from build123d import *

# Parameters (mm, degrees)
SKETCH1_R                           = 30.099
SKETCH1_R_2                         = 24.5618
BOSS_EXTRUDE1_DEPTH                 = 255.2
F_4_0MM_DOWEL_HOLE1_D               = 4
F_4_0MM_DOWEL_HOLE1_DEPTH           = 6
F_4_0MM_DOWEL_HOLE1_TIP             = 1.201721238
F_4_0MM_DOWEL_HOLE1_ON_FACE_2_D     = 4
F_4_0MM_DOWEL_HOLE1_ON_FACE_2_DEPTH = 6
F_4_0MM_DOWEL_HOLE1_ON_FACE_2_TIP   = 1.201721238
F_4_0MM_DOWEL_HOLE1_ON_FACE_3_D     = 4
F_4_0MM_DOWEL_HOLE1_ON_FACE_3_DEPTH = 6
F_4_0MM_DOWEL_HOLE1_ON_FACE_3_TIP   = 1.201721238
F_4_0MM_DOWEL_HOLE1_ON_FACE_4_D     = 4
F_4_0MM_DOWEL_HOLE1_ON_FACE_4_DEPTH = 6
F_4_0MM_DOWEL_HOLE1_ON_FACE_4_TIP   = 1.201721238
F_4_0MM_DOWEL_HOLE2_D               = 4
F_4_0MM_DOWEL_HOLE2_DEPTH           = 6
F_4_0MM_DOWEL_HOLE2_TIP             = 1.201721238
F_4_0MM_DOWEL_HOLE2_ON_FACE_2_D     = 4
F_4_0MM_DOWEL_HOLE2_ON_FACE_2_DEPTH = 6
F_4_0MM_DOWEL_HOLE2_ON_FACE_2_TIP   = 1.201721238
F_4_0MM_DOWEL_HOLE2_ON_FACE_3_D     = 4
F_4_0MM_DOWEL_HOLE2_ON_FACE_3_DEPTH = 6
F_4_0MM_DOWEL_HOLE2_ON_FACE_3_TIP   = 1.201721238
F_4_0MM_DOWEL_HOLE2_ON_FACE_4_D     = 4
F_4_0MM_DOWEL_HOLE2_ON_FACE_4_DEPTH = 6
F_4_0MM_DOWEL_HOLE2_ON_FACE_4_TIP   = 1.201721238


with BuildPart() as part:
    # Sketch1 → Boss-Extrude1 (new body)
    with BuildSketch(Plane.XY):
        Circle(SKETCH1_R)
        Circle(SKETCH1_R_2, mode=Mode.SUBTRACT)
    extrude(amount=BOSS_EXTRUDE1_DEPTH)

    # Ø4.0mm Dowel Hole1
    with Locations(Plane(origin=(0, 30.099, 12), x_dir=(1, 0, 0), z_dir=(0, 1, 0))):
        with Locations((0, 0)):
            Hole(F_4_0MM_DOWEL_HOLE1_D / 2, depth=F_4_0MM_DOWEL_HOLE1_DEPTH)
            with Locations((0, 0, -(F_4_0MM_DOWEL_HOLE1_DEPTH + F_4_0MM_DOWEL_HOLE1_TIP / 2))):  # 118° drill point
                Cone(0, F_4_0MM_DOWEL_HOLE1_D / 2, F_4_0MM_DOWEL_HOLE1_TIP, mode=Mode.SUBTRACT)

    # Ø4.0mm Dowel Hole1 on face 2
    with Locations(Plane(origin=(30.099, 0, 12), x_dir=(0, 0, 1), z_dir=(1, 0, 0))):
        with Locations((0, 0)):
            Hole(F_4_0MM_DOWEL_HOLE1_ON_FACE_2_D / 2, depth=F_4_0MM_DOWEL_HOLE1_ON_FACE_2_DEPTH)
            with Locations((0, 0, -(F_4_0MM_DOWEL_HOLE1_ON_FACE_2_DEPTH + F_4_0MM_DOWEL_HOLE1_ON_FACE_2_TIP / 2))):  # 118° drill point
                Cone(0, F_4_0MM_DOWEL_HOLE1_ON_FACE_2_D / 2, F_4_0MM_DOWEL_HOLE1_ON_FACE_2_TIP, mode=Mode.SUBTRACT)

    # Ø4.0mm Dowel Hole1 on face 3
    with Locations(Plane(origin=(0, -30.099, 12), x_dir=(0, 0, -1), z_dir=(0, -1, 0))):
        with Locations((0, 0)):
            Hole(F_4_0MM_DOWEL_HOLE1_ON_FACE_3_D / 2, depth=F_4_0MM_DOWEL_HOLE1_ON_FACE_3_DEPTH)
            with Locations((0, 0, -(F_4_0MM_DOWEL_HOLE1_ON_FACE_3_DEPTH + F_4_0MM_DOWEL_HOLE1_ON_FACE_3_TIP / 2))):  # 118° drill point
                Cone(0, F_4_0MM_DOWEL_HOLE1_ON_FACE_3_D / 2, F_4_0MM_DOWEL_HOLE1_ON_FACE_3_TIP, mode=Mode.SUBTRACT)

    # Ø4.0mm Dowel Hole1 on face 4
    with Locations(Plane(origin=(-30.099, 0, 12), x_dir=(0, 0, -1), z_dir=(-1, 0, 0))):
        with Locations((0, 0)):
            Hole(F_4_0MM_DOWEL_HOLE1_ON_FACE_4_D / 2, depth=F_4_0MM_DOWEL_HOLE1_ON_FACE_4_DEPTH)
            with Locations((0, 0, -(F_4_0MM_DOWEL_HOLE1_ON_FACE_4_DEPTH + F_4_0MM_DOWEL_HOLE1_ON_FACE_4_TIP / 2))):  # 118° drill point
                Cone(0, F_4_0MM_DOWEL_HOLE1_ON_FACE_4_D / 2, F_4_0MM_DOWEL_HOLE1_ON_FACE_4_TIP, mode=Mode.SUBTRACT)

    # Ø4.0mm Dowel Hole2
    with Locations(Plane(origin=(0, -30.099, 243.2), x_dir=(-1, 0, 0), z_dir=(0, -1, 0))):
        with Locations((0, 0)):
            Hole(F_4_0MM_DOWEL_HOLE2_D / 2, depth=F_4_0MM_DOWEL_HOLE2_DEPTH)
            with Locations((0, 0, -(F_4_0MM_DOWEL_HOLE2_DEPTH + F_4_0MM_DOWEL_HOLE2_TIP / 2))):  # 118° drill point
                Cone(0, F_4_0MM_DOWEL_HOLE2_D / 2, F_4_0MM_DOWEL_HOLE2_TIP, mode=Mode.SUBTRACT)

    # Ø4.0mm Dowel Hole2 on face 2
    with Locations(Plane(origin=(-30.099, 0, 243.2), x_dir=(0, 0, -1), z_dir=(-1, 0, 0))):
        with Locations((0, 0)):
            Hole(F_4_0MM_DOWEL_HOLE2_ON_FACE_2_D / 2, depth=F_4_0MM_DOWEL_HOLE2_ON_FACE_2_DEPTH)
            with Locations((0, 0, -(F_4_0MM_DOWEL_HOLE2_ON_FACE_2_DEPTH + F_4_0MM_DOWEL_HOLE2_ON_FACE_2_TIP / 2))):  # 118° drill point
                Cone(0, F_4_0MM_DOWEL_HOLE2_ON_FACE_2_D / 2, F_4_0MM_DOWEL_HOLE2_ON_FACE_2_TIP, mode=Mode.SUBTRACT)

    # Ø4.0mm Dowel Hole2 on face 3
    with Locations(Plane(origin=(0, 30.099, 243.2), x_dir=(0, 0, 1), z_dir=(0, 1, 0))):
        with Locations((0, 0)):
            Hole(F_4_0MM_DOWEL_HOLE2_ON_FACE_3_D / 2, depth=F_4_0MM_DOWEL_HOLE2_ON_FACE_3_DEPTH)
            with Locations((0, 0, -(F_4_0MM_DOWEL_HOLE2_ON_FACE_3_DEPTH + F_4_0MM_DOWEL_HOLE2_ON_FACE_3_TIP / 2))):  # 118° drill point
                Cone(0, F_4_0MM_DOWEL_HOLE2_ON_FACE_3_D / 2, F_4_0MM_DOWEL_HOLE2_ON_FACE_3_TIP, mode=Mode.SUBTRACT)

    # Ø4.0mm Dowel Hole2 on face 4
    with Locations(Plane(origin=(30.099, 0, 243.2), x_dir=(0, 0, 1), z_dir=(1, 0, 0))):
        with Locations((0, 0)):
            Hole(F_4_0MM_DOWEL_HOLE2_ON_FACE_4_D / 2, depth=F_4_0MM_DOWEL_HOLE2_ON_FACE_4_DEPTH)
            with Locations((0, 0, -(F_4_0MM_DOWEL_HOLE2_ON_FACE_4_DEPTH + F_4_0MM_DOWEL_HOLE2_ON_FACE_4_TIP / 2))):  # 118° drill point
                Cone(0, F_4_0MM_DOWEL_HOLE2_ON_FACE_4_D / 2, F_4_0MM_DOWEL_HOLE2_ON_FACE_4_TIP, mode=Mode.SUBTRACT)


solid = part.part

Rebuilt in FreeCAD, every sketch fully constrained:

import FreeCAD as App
import Part
import Sketcher

V = App.Vector
Q = App.Units.Quantity

doc = App.newDocument("Part")
body = doc.addObject("PartDesign::Body", "Body")

sketch1 = body.newObject("Sketcher::SketchObject", "Sketch")
sketch1.AttachmentSupport = (doc.getObject("XY_Plane"), [""])
sketch1.MapMode = "FlatFace"
sketch1.addGeometry(Part.Circle(V(0, 0, 0), V(0, 0, 1), 30), False)
sketch1.addGeometry(Part.Circle(V(0, 0, 0), V(0, 0, 1), 25), False)
sketch1.addConstraint(Sketcher.Constraint("Coincident", 0, 3, -1, 1))
sketch1.addConstraint(Sketcher.Constraint("Coincident", 1, 3, -1, 1))
sketch1.addConstraint(Sketcher.Constraint("Diameter", 0, Q("60.198 mm")))
sketch1.addConstraint(Sketcher.Constraint("Diameter", 1, Q("49.1236 mm")))
pad1 = body.newObject("PartDesign::Pad", "Pad")
pad1.Profile = sketch1
pad1.Length = 255.2

sketch2 = body.newObject("Sketcher::SketchObject", "Sketch001")
sketch2.AttachmentSupport = (doc.getObject("XZ_Plane"), [""])
sketch2.MapMode = "FlatFace"
sketch2.AttachmentOffset = App.Placement(V(0, 0, -30.099), App.Rotation())
sketch2.addGeometry(Part.Circle(V(0, 12, 0), V(0, 0, 1), 2), False)
sketch2.addConstraint(Sketcher.Constraint("PointOnObject", 0, 3, -2))
sketch2.addConstraint(Sketcher.Constraint("Diameter", 0, Q("4 mm")))
sketch2.addConstraint(Sketcher.Constraint("DistanceY", -1, 1, 0, 3, Q("12 mm")))
doc.recompute()
hole = body.newObject("PartDesign::Hole", "Hole")
hole.Profile = sketch2
hole.ThreadType = "None"
hole.Diameter = 4
hole.DepthType = "Dimension"
hole.Depth = 6
hole.DrillPoint = "Angled"
hole.DrillPointAngle = 118
hole.Reversed = True

sketch3 = body.newObject("Sketcher::SketchObject", "Sketch002")
sketch3.AttachmentSupport = (doc.getObject("YZ_Plane"), [""])
sketch3.MapMode = "FlatFace"
sketch3.AttachmentOffset = App.Placement(V(0, 0, 30.099), App.Rotation())
sketch3.addGeometry(Part.Circle(V(0, 12, 0), V(0, 0, 1), 2), False)
sketch3.addConstraint(Sketcher.Constraint("PointOnObject", 0, 3, -2))
sketch3.addConstraint(Sketcher.Constraint("Diameter", 0, Q("4 mm")))
sketch3.addConstraint(Sketcher.Constraint("DistanceY", -1, 1, 0, 3, Q("12 mm")))
doc.recompute()
hole2 = body.newObject("PartDesign::Hole", "Hole001")
hole2.Profile = sketch3
hole2.ThreadType = "None"
hole2.Diameter = 4
hole2.DepthType = "Dimension"
hole2.Depth = 6
hole2.DrillPoint = "Angled"
hole2.DrillPointAngle = 118

sketch4 = body.newObject("Sketcher::SketchObject", "Sketch003")
sketch4.AttachmentSupport = (doc.getObject("XZ_Plane"), [""])
sketch4.MapMode = "FlatFace"
sketch4.AttachmentOffset = App.Placement(V(0, 0, 30.099), App.Rotation())
sketch4.addGeometry(Part.Circle(V(0, 12, 0), V(0, 0, 1), 2), False)
sketch4.addConstraint(Sketcher.Constraint("PointOnObject", 0, 3, -2))
sketch4.addConstraint(Sketcher.Constraint("Diameter", 0, Q("4 mm")))
sketch4.addConstraint(Sketcher.Constraint("DistanceY", -1, 1, 0, 3, Q("12 mm")))
doc.recompute()
hole3 = body.newObject("PartDesign::Hole", "Hole002")
hole3.Profile = sketch4
hole3.ThreadType = "None"
hole3.Diameter = 4
hole3.DepthType = "Dimension"
hole3.Depth = 6
hole3.DrillPoint = "Angled"
hole3.DrillPointAngle = 118

sketch5 = body.newObject("Sketcher::SketchObject", "Sketch004")
sketch5.AttachmentSupport = (doc.getObject("YZ_Plane"), [""])
sketch5.MapMode = "FlatFace"
sketch5.AttachmentOffset = App.Placement(V(0, 0, -30.099), App.Rotation())
sketch5.addGeometry(Part.Circle(V(0, 12, 0), V(0, 0, 1), 2), False)
sketch5.addConstraint(Sketcher.Constraint("PointOnObject", 0, 3, -2))
sketch5.addConstraint(Sketcher.Constraint("Diameter", 0, Q("4 mm")))
sketch5.addConstraint(Sketcher.Constraint("DistanceY", -1, 1, 0, 3, Q("12 mm")))
doc.recompute()
hole4 = body.newObject("PartDesign::Hole", "Hole003")
hole4.Profile = sketch5
hole4.ThreadType = "None"
hole4.Diameter = 4
hole4.DepthType = "Dimension"
hole4.Depth = 6
hole4.DrillPoint = "Angled"
hole4.DrillPointAngle = 118
hole4.Reversed = True

sketch6 = body.newObject("Sketcher::SketchObject", "Sketch005")
sketch6.AttachmentSupport = (doc.getObject("XZ_Plane"), [""])
sketch6.MapMode = "FlatFace"
sketch6.AttachmentOffset = App.Placement(V(0, 0, 30.099), App.Rotation())
sketch6.addGeometry(Part.Circle(V(0, 243.2, 0), V(0, 0, 1), 2), False)
sketch6.addConstraint(Sketcher.Constraint("PointOnObject", 0, 3, -2))
sketch6.addConstraint(Sketcher.Constraint("Diameter", 0, Q("4 mm")))
sketch6.addConstraint(Sketcher.Constraint("DistanceY", -1, 1, 0, 3, Q("243.2 mm")))
doc.recompute()
hole5 = body.newObject("PartDesign::Hole", "Hole004")
hole5.Profile = sketch6
hole5.ThreadType = "None"
hole5.Diameter = 4
hole5.DepthType = "Dimension"
hole5.Depth = 6
hole5.DrillPoint = "Angled"
hole5.DrillPointAngle = 118

sketch7 = body.newObject("Sketcher::SketchObject", "Sketch006")
sketch7.AttachmentSupport = (doc.getObject("YZ_Plane"), [""])
sketch7.MapMode = "FlatFace"
sketch7.AttachmentOffset = App.Placement(V(0, 0, -30.099), App.Rotation())
sketch7.addGeometry(Part.Circle(V(0, 243.2, 0), V(0, 0, 1), 2), False)
sketch7.addConstraint(Sketcher.Constraint("PointOnObject", 0, 3, -2))
sketch7.addConstraint(Sketcher.Constraint("Diameter", 0, Q("4 mm")))
sketch7.addConstraint(Sketcher.Constraint("DistanceY", -1, 1, 0, 3, Q("243.2 mm")))
doc.recompute()
hole6 = body.newObject("PartDesign::Hole", "Hole005")
hole6.Profile = sketch7
hole6.ThreadType = "None"
hole6.Diameter = 4
hole6.DepthType = "Dimension"
hole6.Depth = 6
hole6.DrillPoint = "Angled"
hole6.DrillPointAngle = 118
hole6.Reversed = True

sketch8 = body.newObject("Sketcher::SketchObject", "Sketch007")
sketch8.AttachmentSupport = (doc.getObject("XZ_Plane"), [""])
sketch8.MapMode = "FlatFace"
sketch8.AttachmentOffset = App.Placement(V(0, 0, -30.099), App.Rotation())
sketch8.addGeometry(Part.Circle(V(0, 243.2, 0), V(0, 0, 1), 2), False)
sketch8.addConstraint(Sketcher.Constraint("PointOnObject", 0, 3, -2))
sketch8.addConstraint(Sketcher.Constraint("Diameter", 0, Q("4 mm")))
sketch8.addConstraint(Sketcher.Constraint("DistanceY", -1, 1, 0, 3, Q("243.2 mm")))
doc.recompute()
hole7 = body.newObject("PartDesign::Hole", "Hole006")
hole7.Profile = sketch8
hole7.ThreadType = "None"
hole7.Diameter = 4
hole7.DepthType = "Dimension"
hole7.Depth = 6
hole7.DrillPoint = "Angled"
hole7.DrillPointAngle = 118
hole7.Reversed = True

sketch9 = body.newObject("Sketcher::SketchObject", "Sketch008")
sketch9.AttachmentSupport = (doc.getObject("YZ_Plane"), [""])
sketch9.MapMode = "FlatFace"
sketch9.AttachmentOffset = App.Placement(V(0, 0, 30.099), App.Rotation())
sketch9.addGeometry(Part.Circle(V(0, 243.2, 0), V(0, 0, 1), 2), False)
sketch9.addConstraint(Sketcher.Constraint("PointOnObject", 0, 3, -2))
sketch9.addConstraint(Sketcher.Constraint("Diameter", 0, Q("4 mm")))
sketch9.addConstraint(Sketcher.Constraint("DistanceY", -1, 1, 0, 3, Q("243.2 mm")))
doc.recompute()
hole8 = body.newObject("PartDesign::Hole", "Hole007")
hole8.Profile = sketch9
hole8.ThreadType = "None"
hole8.Diameter = 4
hole8.DepthType = "Dimension"
hole8.Depth = 6
hole8.DrillPoint = "Angled"
hole8.DrillPointAngle = 118

doc.recompute()
